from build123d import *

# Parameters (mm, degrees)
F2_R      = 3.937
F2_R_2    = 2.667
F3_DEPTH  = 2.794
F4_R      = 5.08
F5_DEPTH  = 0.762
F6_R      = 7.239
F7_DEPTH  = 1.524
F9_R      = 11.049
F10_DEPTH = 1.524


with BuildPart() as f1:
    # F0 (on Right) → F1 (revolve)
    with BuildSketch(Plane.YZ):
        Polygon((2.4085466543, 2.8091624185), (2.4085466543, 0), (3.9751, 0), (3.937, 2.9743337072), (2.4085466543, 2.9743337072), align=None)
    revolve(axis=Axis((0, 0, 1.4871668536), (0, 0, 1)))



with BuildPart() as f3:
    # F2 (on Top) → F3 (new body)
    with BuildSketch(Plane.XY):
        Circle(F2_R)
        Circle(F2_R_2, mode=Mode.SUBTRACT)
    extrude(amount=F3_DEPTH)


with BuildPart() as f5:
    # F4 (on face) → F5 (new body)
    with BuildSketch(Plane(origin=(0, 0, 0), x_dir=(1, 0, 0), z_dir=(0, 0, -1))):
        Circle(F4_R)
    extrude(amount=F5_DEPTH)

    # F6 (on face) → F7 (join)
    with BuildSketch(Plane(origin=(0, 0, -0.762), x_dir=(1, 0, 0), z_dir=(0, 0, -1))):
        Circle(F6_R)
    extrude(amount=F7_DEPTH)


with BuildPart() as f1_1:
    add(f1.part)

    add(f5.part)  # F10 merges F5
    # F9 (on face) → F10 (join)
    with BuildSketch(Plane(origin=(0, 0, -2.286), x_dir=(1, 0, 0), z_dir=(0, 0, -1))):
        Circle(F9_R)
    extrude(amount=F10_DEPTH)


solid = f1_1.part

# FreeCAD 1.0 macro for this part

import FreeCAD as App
import Part
import Sketcher
Q = App.Units.Quantity


def add_polygon(sketch, points):
    """Adds a closed chain of lines whose ends are joined by coincident constraints."""
    first, n = sketch.GeometryCount, len(points)
    for a, b in zip(points, points[1:] + points[:1]):
        sketch.addGeometry(Part.LineSegment(App.Vector(*a, 0), App.Vector(*b, 0)), False)
    for i in range(n):
        sketch.addConstraint(Sketcher.Constraint("Coincident", first + i, 2, first + (i + 1) % n, 1))

doc = App.newDocument("Part")
body = doc.addObject("PartDesign::Body", "Body")

sketch1 = body.newObject("Sketcher::SketchObject", "Sketch")
sketch1.AttachmentSupport = (doc.getObject("YZ_Plane"), [""])
sketch1.MapMode = "FlatFace"
add_polygon(sketch1, [(2.4, 0), (4, 0), (3.9, 3), (2.4, 3)])
sketch1.addConstraint([
    Sketcher.Constraint("Horizontal", 0),
    Sketcher.Constraint("Horizontal", 2),
    Sketcher.Constraint("Vertical", 3),
    Sketcher.Constraint("PointOnObject", 0, 2, -1),
    Sketcher.Constraint("DistanceX", -1, 1, 1, 2, Q("0.155 in")),
    Sketcher.Constraint("DistanceX", -1, 1, 0, 2, Q("0.1565 in")),
    Sketcher.Constraint("DistanceX", 0, 1, 0, 2, Q("1.566553 mm")),
    Sketcher.Constraint("DistanceY", 3, 2, 3, 1, Q("2.974334 mm")),
])
revolution = body.newObject("PartDesign::Revolution", "Revolution")
revolution.Profile = sketch1
revolution.ReferenceAxis = (sketch1, ["V_Axis"])
revolution.Angle = 360
body2 = doc.addObject("PartDesign::Body", "Body001")

sketch2 = body2.newObject("Sketcher::SketchObject", "Sketch001")
sketch2.AttachmentSupport = (doc.getObject("XY_Plane001"), [""])
sketch2.MapMode = "FlatFace"
sketch2.addGeometry([
    Part.Circle(App.Vector(0, 0, 0), App.Vector(0, 0, 1), 3.9),
    Part.Circle(App.Vector(0, 0, 0), App.Vector(0, 0, 1), 2.7),
], False)
sketch2.addConstraint([
    Sketcher.Constraint("Coincident", 0, 3, -1, 1),
    Sketcher.Constraint("Coincident", 1, 3, -1, 1),
    Sketcher.Constraint("Diameter", 0, Q("0.31 in")),
    Sketcher.Constraint("Diameter", 1, Q("0.21 in")),
])
pad1 = body2.newObject("PartDesign::Pad", "Pad")
pad1.Profile = sketch2
pad1.Length = Q("0.11 in")
body3 = doc.addObject("PartDesign::Body", "Body002")

sketch3 = body3.newObject("Sketcher::SketchObject", "Sketch002")
sketch3.AttachmentSupport = (doc.getObject("XY_Plane002"), [""])
sketch3.MapMode = "FlatFace"
sketch3.addGeometry(Part.Circle(App.Vector(0, 0, 0), App.Vector(0, 0, 1), 5), False)
sketch3.addConstraint([
    Sketcher.Constraint("Coincident", 0, 3, -1, 1),
    Sketcher.Constraint("Diameter", 0, Q("0.4 in")),
])
pad2 = body3.newObject("PartDesign::Pad", "Pad001")
pad2.Profile = sketch3
pad2.Length = Q("0.03 in")
pad2.Reversed = True

sketch4 = body3.newObject("Sketcher::SketchObject", "Sketch003")
sketch4.AttachmentSupport = (doc.getObject("XY_Plane002"), [""])
sketch4.MapMode = "FlatFace"
sketch4.AttachmentOffset = App.Placement(App.Vector(0, 0, -0.03 * 25.4), App.Rotation())
sketch4.addGeometry(Part.Circle(App.Vector(0, 0, 0), App.Vector(0, 0, 1), 7), False)
sketch4.addConstraint([
    Sketcher.Constraint("Coincident", 0, 3, -1, 1),
    Sketcher.Constraint("Diameter", 0, Q("0.57 in")),
])
pad3 = body3.newObject("PartDesign::Pad", "Pad002")
pad3.Profile = sketch4
pad3.Length = Q("0.06 in")
pad3.Reversed = True
doc.recompute()

boolean = body.newObject("PartDesign::Boolean", "Boolean")
boolean.Type = "Fuse"
boolean.addObjects([body3])

sketch5 = body.newObject("Sketcher::SketchObject", "Sketch004")
sketch5.AttachmentSupport = (doc.getObject("XY_Plane"), [""])
sketch5.MapMode = "FlatFace"
sketch5.AttachmentOffset = App.Placement(App.Vector(0, 0, -0.09 * 25.4), App.Rotation())
sketch5.addGeometry(Part.Circle(App.Vector(0, 0, 0), App.Vector(0, 0, 1), 11), False)
sketch5.addConstraint([
    Sketcher.Constraint("Coincident", 0, 3, -1, 1),
    Sketcher.Constraint("Diameter", 0, Q("0.87 in")),
])
pad4 = body.newObject("PartDesign::Pad", "Pad003")
pad4.Profile = sketch5
pad4.Length = Q("0.06 in")
pad4.Reversed = True
body2.Visibility = False

doc.recompute()
